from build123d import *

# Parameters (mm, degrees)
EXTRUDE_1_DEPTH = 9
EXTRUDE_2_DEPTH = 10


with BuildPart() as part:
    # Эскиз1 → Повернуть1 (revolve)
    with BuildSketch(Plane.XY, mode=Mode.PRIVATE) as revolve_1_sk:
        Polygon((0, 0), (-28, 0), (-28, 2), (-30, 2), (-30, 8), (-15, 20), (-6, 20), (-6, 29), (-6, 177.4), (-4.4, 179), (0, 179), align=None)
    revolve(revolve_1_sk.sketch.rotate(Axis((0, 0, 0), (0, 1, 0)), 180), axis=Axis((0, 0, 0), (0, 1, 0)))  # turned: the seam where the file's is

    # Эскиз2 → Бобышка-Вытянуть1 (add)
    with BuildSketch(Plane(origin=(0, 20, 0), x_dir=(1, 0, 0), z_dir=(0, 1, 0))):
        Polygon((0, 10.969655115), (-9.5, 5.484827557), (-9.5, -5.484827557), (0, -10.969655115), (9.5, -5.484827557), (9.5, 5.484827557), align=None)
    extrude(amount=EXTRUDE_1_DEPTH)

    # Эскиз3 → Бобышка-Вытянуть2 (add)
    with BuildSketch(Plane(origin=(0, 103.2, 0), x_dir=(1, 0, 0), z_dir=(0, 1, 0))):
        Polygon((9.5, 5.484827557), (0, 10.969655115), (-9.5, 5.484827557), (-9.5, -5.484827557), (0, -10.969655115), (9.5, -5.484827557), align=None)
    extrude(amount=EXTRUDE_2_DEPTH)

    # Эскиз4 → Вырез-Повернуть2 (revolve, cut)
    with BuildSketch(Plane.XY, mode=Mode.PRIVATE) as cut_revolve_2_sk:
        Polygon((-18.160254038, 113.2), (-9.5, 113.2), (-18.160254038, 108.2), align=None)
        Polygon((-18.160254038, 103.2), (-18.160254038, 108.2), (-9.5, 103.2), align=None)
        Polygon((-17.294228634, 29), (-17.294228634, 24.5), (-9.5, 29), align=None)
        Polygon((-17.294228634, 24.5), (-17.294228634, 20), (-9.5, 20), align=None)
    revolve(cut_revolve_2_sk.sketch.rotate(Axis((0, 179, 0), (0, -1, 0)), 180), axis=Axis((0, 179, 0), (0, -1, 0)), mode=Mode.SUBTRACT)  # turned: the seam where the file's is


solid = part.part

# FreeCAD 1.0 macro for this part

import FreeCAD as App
import Part
import Sketcher
Q = App.Units.Quantity


def add_polygon(sketch, points):
    """Adds a closed chain of lines whose ends are joined by coincident constraints."""
    first, n = sketch.GeometryCount, len(points)
    for a, b in zip(points, points[1:] + points[:1]):
        sketch.addGeometry(Part.LineSegment(App.Vector(*a, 0), App.Vector(*b, 0)), False)
    for i in range(n):
        sketch.addConstraint(Sketcher.Constraint("Coincident", first + i, 2, first + (i + 1) % n, 1))

doc = App.newDocument("Part")
params = doc.addObject("Spreadsheet::Sheet", "Params")
for row, (alias, value) in enumerate([
    ("sketch1_width", "28 mm"),
    ("sketch1_width2", "9 mm"),
    ("sketch1_width3", "2 mm"),
    ("sketch1_height", "179 mm"),
    ("sketch1_height2", "6 mm"),
    ("revolution_angle", "360 deg"),
    ("pad1_length", "9 mm"),
    ("pad2_length", "10 mm"),
    ("sketch4_height", "5 mm"),
    ("sketch4_length", "9 mm"),
    ("groove_angle", "360 deg"),
], start=1):
    params.set(f"A{row}", alias)
    params.set(f"B{row}", "=" + value)
    params.setAlias(f"B{row}", alias)

body = doc.addObject("PartDesign::Body", "Body")

sketch1 = body.newObject("Sketcher::SketchObject", "Sketch")
sketch1.AttachmentSupport = (doc.getObject("XY_Plane"), [""])
sketch1.MapMode = "FlatFace"
add_polygon(sketch1, [(-28, 0), (0, 0), (0, 179), (-4.4, 179), (-6, 177.4), (-6, 20), (-15, 20), (-30, 8), (-30, 2), (-28, 2)])
sketch1.addConstraint(Sketcher.Constraint("Horizontal", 0))
sketch1.addConstraint(Sketcher.Constraint("Vertical", 1))
sketch1.addConstraint(Sketcher.Constraint("Horizontal", 2))
sketch1.addConstraint(Sketcher.Constraint("Vertical", 4))
sketch1.addConstraint(Sketcher.Constraint("Horizontal", 5))
sketch1.addConstraint(Sketcher.Constraint("Vertical", 7))
sketch1.addConstraint(Sketcher.Constraint("Horizontal", 8))
sketch1.addConstraint(Sketcher.Constraint("Vertical", 9))
sketch1.addConstraint(Sketcher.Constraint("Coincident", 0, 2, -1, 1))
sketch1.addConstraint(Sketcher.Constraint("Equal", 8, 9))
sketch1.addConstraint(Sketcher.Constraint("DistanceX", 0, 1, 0, 2, Q("28 mm")))
sketch1.addConstraint(Sketcher.Constraint("DistanceX", 5, 2, 5, 1, Q("9 mm")))
sketch1.addConstraint(Sketcher.Constraint("DistanceX", 8, 1, 8, 2, Q("2 mm")))
sketch1.addConstraint(Sketcher.Constraint("DistanceY", 1, 1, 1, 2, Q("179 mm")))
sketch1.addConstraint(Sketcher.Constraint("DistanceY", 7, 2, 7, 1, Q("6 mm")))
sketch1.addConstraint(Sketcher.Constraint("Angle", 3, Q("-135 deg")))
sketch1.addConstraint(Sketcher.Constraint("DistanceX", 2, 2, 2, 1, Q("4.4 mm")))
sketch1.addConstraint(Sketcher.Constraint("DistanceY", 4, 2, 4, 1, Q("157.4 mm")))
sketch1.addConstraint(Sketcher.Constraint("DistanceX", 3, 2, -1, 1, Q("6 mm")))
sketch1.setExpression("Constraints[20]", "Params.sketch1_width")
sketch1.setExpression("Constraints[21]", "Params.sketch1_width2")
sketch1.setExpression("Constraints[22]", "Params.sketch1_width3")
sketch1.setExpression("Constraints[23]", "Params.sketch1_height")
sketch1.setExpression("Constraints[24]", "Params.sketch1_height2")
revolution = body.newObject("PartDesign::Revolution", "Revolution")
revolution.Profile = sketch1
revolution.ReferenceAxis = (sketch1, ["V_Axis"])
revolution.setExpression("Angle", "Params.revolution_angle")

sketch2 = body.newObject("Sketcher::SketchObject", "Sketch001")
sketch2.AttachmentSupport = (doc.getObject("XZ_Plane"), [""])
sketch2.MapMode = "FlatFace"
sketch2.AttachmentOffset = App.Placement(App.Vector(0, 0, -20), App.Rotation())
add_polygon(sketch2, [(0, -10.969655), (-9.5, -5.484828), (-9.5, 5.484828), (0, 10.969655), (9.5, 5.484828), (9.5, -5.484828)])
sketch2.addConstraint(Sketcher.Constraint("Vertical", 1))
sketch2.addConstraint(Sketcher.Constraint("Vertical", 4))
sketch2.addConstraint(Sketcher.Constraint("Symmetric", 0, 2, 3, 2, -1, 1))
sketch2.addConstraint(Sketcher.Constraint("Symmetric", 2, 2, 5, 2, -1, 1))
sketch2.addConstraint(Sketcher.Constraint("PointOnObject", 2, 2, -2))
sketch2.addConstraint(Sketcher.Constraint("Parallel", 2, 5))
sketch2.addConstraint(Sketcher.Constraint("Horizontal", 1, 2, 3, 2))
sketch2.addConstraint(Sketcher.Constraint("Angle", 0, Q("150 deg")))
sketch2.addConstraint(Sketcher.Constraint("DistanceX", 1, 2, 3, 2, Q("19 mm")))
sketch2.addConstraint(Sketcher.Constraint("DistanceY", 1, 1, 1, 2, Q("10.969655 mm")))
pad1 = body.newObject("PartDesign::Pad", "Pad")
pad1.Profile = sketch2
pad1.setExpression("Length", "Params.pad1_length")
pad1.Reversed = True

sketch3 = body.newObject("Sketcher::SketchObject", "Sketch002")
sketch3.AttachmentSupport = (doc.getObject("XZ_Plane"), [""])
sketch3.MapMode = "FlatFace"
sketch3.AttachmentOffset = App.Placement(App.Vector(0, 0, -103.2), App.Rotation())
add_polygon(sketch3, [(9.5, -5.484828), (0, -10.969655), (-9.5, -5.484828), (-9.5, 5.484828), (0, 10.969655), (9.5, 5.484828)])
sketch3.addConstraint(Sketcher.Constraint("Vertical", 2))
sketch3.addConstraint(Sketcher.Constraint("Vertical", 5))
sketch3.addConstraint(Sketcher.Constraint("Symmetric", 0, 2, 3, 2, -1, 1))
sketch3.addConstraint(Sketcher.Constraint("Symmetric", 1, 2, 4, 2, -1, 1))
sketch3.addConstraint(Sketcher.Constraint("PointOnObject", 0, 2, -2))
sketch3.addConstraint(Sketcher.Constraint("Parallel", 0, 3))
sketch3.addConstraint(Sketcher.Constraint("Horizontal", 2, 2, 4, 2))
sketch3.addConstraint(Sketcher.Constraint("Angle", 0, Q("-150 deg")))
sketch3.addConstraint(Sketcher.Constraint("DistanceX", 2, 2, 4, 2, Q("19 mm")))
sketch3.addConstraint(Sketcher.Constraint("DistanceY", 2, 1, 2, 2, Q("10.969655 mm")))
pad2 = body.newObject("PartDesign::Pad", "Pad001")
pad2.Profile = sketch3
pad2.setExpression("Length", "Params.pad2_length")
pad2.Reversed = True

sketch4 = body.newObject("Sketcher::SketchObject", "Sketch003")
sketch4.AttachmentSupport = (doc.getObject("XY_Plane"), [""])
sketch4.MapMode = "FlatFace"
add_polygon(sketch4, [(-9.5, 113.2), (-18.160254, 113.2), (-18.160254, 108.2)])
add_polygon(sketch4, [(-18.160254, 108.2), (-18.160254, 103.2), (-9.5, 103.2)])
add_polygon(sketch4, [(-17.294229, 29), (-17.294229, 24.5), (-9.5, 29)])
add_polygon(sketch4, [(-17.294229, 24.5), (-17.294229, 20), (-9.5, 20)])
sketch4.addConstraint(Sketcher.Constraint("Horizontal", 0))
sketch4.addConstraint(Sketcher.Constraint("Vertical", 1))
sketch4.addConstraint(Sketcher.Constraint("Vertical", 3))
sketch4.addConstraint(Sketcher.Constraint("Horizontal", 4))
sketch4.addConstraint(Sketcher.Constraint("Vertical", 6))
sketch4.addConstraint(Sketcher.Constraint("Horizontal", 8))
sketch4.addConstraint(Sketcher.Constraint("Vertical", 9))
sketch4.addConstraint(Sketcher.Constraint("Horizontal", 10))
sketch4.addConstraint(Sketcher.Constraint("Coincident", 5, 2, 1, 2))
sketch4.addConstraint(Sketcher.Constraint("Coincident", 11, 2, 6, 2))
sketch4.addConstraint(Sketcher.Constraint("Parallel", 2, 7))
sketch4.addConstraint(Sketcher.Constraint("Parallel", 5, 11))
sketch4.addConstraint(Sketcher.Constraint("Vertical", 2, 2, 4, 2))
sketch4.addConstraint(Sketcher.Constraint("Vertical", 4, 2, 7, 2))
sketch4.addConstraint(Sketcher.Constraint("Vertical", 7, 2, 10, 2))
sketch4.addConstraint(Sketcher.Constraint("Equal", 1, 3))
sketch4.addConstraint(Sketcher.Constraint("DistanceY", 1, 2, 1, 1, Q("5 mm")))
sketch4.addConstraint(Sketcher.Constraint("Angle", 2, Q("30 deg")))
sketch4.addConstraint(Sketcher.Constraint("Distance", 7, Q("9 mm")))
sketch4.addConstraint(Sketcher.Constraint("DistanceY", -1, 1, 7, 2, Q("29 mm")))
sketch4.addConstraint(Sketcher.Constraint("DistanceY", -1, 1, 0, 2, Q("113.2 mm")))
sketch4.addConstraint(Sketcher.Constraint("DistanceX", 2, 2, -1, 1, Q("9.5 mm")))
sketch4.setExpression("Constraints[28]", "Params.sketch4_height")
sketch4.setExpression("Constraints[30]", "Params.sketch4_length")
groove = body.newObject("PartDesign::Groove", "Groove")
groove.Profile = sketch4
groove.ReferenceAxis = (sketch4, ["V_Axis"])
groove.setExpression("Angle", "Params.groove_angle")

doc.recompute()
